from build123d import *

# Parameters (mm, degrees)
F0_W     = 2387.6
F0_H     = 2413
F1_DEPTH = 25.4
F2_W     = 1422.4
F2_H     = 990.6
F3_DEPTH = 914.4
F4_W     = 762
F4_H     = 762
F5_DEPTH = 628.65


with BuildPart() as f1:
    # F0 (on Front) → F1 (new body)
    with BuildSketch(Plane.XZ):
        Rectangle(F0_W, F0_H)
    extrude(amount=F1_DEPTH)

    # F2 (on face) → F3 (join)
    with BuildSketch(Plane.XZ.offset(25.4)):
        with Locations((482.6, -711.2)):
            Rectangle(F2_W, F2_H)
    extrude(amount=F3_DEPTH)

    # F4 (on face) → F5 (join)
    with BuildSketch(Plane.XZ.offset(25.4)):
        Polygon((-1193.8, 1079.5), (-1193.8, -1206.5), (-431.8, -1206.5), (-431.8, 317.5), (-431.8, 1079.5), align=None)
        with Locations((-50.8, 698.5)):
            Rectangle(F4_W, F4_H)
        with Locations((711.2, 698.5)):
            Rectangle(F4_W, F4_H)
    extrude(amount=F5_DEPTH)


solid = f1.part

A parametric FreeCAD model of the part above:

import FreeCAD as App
import Part
import Sketcher

V = App.Vector
Q = App.Units.Quantity

doc = App.newDocument("Part")
body = doc.addObject("PartDesign::Body", "Body")

# Sketch on XZ plane
sketch1 = body.newObject("Sketcher::SketchObject", "Sketch")
sketch1.AttachmentSupport = (doc.getObject("XZ_Plane"), [""])
sketch1.MapMode = "FlatFace"
sketch1.addGeometry([
    Part.LineSegment(V(-1194, 1206, 0), V(-1194, -1206, 0)),
    Part.LineSegment(V(-1194, -1206, 0), V(1194, -1206, 0)),
    Part.LineSegment(V(1194, -1206, 0), V(1194, 1206, 0)),
    Part.LineSegment(V(1194, 1206, 0), V(-1194, 1206, 0)),
], False)
sketch1.addConstraint([
    Sketcher.Constraint("Coincident", 0, 2, 1, 1),
    Sketcher.Constraint("Coincident", 1, 2, 2, 1),
    Sketcher.Constraint("Coincident", 2, 2, 3, 1),
    Sketcher.Constraint("Coincident", 3, 2, 0, 1),
    Sketcher.Constraint("Vertical", 0),
    Sketcher.Constraint("Horizontal", 1),
    Sketcher.Constraint("Vertical", 2),
    Sketcher.Constraint("Horizontal", 3),
    Sketcher.Constraint("Symmetric", 0, 2, 2, 2, -1, 1),
    Sketcher.Constraint("DistanceX", 1, 1, 1, 2, Q("94 in")),
    Sketcher.Constraint("DistanceY", 0, 2, 0, 1, Q("95 in")),
])
pad1 = body.newObject("PartDesign::Pad", "Pad")
pad1.Profile = sketch1
pad1.Length = Q("1 in")

# Sketch on XZ plane
sketch2 = body.newObject("Sketcher::SketchObject", "Sketch001")
sketch2.AttachmentSupport = (doc.getObject("XZ_Plane"), [""])
sketch2.MapMode = "FlatFace"
sketch2.AttachmentOffset = App.Placement(V(0, 0, 1 * 25.4), App.Rotation())
sketch2.addGeometry([
    Part.LineSegment(V(-229, -216, 0), V(-229, -1206, 0)),
    Part.LineSegment(V(-229, -1206, 0), V(1194, -1206, 0)),
    Part.LineSegment(V(1194, -1206, 0), V(1194, -216, 0)),
    Part.LineSegment(V(1194, -216, 0), V(-229, -216, 0)),
], False)
sketch2.addConstraint([
    Sketcher.Constraint("Coincident", 0, 2, 1, 1),
    Sketcher.Constraint("Coincident", 1, 2, 2, 1),
    Sketcher.Constraint("Coincident", 2, 2, 3, 1),
    Sketcher.Constraint("Coincident", 3, 2, 0, 1),
    Sketcher.Constraint("Vertical", 0),
    Sketcher.Constraint("Horizontal", 1),
    Sketcher.Constraint("Vertical", 2),
    Sketcher.Constraint("Horizontal", 3),
    Sketcher.Constraint("DistanceX", 1, 1, 1, 2, Q("56 in")),
    Sketcher.Constraint("DistanceY", 0, 2, 0, 1, Q("39 in")),
    Sketcher.Constraint("DistanceX", 0, 2, -1, 1, Q("9 in")),
    Sketcher.Constraint("DistanceY", 0, 2, -1, 1, Q("47.5 in")),
])
pad2 = body.newObject("PartDesign::Pad", "Pad001")
pad2.Profile = sketch2
pad2.Length = Q("36 in")

# Sketch on XZ plane
sketch3 = body.newObject("Sketcher::SketchObject", "Sketch002")
sketch3.AttachmentSupport = (doc.getObject("XZ_Plane"), [""])
sketch3.MapMode = "FlatFace"
sketch3.AttachmentOffset = App.Placement(V(0, 0, 1 * 25.4), App.Rotation())
sketch3.addGeometry([
    Part.LineSegment(V(-1194, 1080, 0), V(-1194, -1206, 0)),  # 0
    Part.LineSegment(V(-1194, -1206, 0), V(-432, -1206, 0)),  # 1
    Part.LineSegment(V(-432, -1206, 0), V(-432, 318, 0)),  # 2
    Part.LineSegment(V(-432, 318, 0), V(1092, 318, 0)),  # 3
    Part.LineSegment(V(1092, 318, 0), V(1092, 1080, 0)),  # 4
    Part.LineSegment(V(1092, 1080, 0), V(-1194, 1080, 0)),  # 5
], False)
sketch3.addConstraint([
    Sketcher.Constraint("Coincident", 0, 2, 1, 1),
    Sketcher.Constraint("Coincident", 1, 2, 2, 1),
    Sketcher.Constraint("Coincident", 2, 2, 3, 1),
    Sketcher.Constraint("Coincident", 3, 2, 4, 1),
    Sketcher.Constraint("Coincident", 4, 2, 5, 1),
    Sketcher.Constraint("Coincident", 5, 2, 0, 1),
    Sketcher.Constraint("Vertical", 0),
    Sketcher.Constraint("Horizontal", 1),
    Sketcher.Constraint("Vertical", 2),
    Sketcher.Constraint("Horizontal", 3),
    Sketcher.Constraint("Vertical", 4),
    Sketcher.Constraint("Horizontal", 5),
    Sketcher.Constraint("Equal", 5, 0),
    Sketcher.Constraint("Equal", 3, 2),
    Sketcher.Constraint("DistanceX", 1, 1, 1, 2, Q("30 in")),
    Sketcher.Constraint("DistanceX", 3, 1, 3, 2, Q("60 in")),
    Sketcher.Constraint("DistanceX", 0, 2, -1, 1, Q("47 in")),
    Sketcher.Constraint("DistanceY", 0, 2, -1, 1, Q("47.5 in")),
])
pad3 = body.newObject("PartDesign::Pad", "Pad002")
pad3.Profile = sketch3
pad3.Length = Q("24.75 in")

doc.recompute()
